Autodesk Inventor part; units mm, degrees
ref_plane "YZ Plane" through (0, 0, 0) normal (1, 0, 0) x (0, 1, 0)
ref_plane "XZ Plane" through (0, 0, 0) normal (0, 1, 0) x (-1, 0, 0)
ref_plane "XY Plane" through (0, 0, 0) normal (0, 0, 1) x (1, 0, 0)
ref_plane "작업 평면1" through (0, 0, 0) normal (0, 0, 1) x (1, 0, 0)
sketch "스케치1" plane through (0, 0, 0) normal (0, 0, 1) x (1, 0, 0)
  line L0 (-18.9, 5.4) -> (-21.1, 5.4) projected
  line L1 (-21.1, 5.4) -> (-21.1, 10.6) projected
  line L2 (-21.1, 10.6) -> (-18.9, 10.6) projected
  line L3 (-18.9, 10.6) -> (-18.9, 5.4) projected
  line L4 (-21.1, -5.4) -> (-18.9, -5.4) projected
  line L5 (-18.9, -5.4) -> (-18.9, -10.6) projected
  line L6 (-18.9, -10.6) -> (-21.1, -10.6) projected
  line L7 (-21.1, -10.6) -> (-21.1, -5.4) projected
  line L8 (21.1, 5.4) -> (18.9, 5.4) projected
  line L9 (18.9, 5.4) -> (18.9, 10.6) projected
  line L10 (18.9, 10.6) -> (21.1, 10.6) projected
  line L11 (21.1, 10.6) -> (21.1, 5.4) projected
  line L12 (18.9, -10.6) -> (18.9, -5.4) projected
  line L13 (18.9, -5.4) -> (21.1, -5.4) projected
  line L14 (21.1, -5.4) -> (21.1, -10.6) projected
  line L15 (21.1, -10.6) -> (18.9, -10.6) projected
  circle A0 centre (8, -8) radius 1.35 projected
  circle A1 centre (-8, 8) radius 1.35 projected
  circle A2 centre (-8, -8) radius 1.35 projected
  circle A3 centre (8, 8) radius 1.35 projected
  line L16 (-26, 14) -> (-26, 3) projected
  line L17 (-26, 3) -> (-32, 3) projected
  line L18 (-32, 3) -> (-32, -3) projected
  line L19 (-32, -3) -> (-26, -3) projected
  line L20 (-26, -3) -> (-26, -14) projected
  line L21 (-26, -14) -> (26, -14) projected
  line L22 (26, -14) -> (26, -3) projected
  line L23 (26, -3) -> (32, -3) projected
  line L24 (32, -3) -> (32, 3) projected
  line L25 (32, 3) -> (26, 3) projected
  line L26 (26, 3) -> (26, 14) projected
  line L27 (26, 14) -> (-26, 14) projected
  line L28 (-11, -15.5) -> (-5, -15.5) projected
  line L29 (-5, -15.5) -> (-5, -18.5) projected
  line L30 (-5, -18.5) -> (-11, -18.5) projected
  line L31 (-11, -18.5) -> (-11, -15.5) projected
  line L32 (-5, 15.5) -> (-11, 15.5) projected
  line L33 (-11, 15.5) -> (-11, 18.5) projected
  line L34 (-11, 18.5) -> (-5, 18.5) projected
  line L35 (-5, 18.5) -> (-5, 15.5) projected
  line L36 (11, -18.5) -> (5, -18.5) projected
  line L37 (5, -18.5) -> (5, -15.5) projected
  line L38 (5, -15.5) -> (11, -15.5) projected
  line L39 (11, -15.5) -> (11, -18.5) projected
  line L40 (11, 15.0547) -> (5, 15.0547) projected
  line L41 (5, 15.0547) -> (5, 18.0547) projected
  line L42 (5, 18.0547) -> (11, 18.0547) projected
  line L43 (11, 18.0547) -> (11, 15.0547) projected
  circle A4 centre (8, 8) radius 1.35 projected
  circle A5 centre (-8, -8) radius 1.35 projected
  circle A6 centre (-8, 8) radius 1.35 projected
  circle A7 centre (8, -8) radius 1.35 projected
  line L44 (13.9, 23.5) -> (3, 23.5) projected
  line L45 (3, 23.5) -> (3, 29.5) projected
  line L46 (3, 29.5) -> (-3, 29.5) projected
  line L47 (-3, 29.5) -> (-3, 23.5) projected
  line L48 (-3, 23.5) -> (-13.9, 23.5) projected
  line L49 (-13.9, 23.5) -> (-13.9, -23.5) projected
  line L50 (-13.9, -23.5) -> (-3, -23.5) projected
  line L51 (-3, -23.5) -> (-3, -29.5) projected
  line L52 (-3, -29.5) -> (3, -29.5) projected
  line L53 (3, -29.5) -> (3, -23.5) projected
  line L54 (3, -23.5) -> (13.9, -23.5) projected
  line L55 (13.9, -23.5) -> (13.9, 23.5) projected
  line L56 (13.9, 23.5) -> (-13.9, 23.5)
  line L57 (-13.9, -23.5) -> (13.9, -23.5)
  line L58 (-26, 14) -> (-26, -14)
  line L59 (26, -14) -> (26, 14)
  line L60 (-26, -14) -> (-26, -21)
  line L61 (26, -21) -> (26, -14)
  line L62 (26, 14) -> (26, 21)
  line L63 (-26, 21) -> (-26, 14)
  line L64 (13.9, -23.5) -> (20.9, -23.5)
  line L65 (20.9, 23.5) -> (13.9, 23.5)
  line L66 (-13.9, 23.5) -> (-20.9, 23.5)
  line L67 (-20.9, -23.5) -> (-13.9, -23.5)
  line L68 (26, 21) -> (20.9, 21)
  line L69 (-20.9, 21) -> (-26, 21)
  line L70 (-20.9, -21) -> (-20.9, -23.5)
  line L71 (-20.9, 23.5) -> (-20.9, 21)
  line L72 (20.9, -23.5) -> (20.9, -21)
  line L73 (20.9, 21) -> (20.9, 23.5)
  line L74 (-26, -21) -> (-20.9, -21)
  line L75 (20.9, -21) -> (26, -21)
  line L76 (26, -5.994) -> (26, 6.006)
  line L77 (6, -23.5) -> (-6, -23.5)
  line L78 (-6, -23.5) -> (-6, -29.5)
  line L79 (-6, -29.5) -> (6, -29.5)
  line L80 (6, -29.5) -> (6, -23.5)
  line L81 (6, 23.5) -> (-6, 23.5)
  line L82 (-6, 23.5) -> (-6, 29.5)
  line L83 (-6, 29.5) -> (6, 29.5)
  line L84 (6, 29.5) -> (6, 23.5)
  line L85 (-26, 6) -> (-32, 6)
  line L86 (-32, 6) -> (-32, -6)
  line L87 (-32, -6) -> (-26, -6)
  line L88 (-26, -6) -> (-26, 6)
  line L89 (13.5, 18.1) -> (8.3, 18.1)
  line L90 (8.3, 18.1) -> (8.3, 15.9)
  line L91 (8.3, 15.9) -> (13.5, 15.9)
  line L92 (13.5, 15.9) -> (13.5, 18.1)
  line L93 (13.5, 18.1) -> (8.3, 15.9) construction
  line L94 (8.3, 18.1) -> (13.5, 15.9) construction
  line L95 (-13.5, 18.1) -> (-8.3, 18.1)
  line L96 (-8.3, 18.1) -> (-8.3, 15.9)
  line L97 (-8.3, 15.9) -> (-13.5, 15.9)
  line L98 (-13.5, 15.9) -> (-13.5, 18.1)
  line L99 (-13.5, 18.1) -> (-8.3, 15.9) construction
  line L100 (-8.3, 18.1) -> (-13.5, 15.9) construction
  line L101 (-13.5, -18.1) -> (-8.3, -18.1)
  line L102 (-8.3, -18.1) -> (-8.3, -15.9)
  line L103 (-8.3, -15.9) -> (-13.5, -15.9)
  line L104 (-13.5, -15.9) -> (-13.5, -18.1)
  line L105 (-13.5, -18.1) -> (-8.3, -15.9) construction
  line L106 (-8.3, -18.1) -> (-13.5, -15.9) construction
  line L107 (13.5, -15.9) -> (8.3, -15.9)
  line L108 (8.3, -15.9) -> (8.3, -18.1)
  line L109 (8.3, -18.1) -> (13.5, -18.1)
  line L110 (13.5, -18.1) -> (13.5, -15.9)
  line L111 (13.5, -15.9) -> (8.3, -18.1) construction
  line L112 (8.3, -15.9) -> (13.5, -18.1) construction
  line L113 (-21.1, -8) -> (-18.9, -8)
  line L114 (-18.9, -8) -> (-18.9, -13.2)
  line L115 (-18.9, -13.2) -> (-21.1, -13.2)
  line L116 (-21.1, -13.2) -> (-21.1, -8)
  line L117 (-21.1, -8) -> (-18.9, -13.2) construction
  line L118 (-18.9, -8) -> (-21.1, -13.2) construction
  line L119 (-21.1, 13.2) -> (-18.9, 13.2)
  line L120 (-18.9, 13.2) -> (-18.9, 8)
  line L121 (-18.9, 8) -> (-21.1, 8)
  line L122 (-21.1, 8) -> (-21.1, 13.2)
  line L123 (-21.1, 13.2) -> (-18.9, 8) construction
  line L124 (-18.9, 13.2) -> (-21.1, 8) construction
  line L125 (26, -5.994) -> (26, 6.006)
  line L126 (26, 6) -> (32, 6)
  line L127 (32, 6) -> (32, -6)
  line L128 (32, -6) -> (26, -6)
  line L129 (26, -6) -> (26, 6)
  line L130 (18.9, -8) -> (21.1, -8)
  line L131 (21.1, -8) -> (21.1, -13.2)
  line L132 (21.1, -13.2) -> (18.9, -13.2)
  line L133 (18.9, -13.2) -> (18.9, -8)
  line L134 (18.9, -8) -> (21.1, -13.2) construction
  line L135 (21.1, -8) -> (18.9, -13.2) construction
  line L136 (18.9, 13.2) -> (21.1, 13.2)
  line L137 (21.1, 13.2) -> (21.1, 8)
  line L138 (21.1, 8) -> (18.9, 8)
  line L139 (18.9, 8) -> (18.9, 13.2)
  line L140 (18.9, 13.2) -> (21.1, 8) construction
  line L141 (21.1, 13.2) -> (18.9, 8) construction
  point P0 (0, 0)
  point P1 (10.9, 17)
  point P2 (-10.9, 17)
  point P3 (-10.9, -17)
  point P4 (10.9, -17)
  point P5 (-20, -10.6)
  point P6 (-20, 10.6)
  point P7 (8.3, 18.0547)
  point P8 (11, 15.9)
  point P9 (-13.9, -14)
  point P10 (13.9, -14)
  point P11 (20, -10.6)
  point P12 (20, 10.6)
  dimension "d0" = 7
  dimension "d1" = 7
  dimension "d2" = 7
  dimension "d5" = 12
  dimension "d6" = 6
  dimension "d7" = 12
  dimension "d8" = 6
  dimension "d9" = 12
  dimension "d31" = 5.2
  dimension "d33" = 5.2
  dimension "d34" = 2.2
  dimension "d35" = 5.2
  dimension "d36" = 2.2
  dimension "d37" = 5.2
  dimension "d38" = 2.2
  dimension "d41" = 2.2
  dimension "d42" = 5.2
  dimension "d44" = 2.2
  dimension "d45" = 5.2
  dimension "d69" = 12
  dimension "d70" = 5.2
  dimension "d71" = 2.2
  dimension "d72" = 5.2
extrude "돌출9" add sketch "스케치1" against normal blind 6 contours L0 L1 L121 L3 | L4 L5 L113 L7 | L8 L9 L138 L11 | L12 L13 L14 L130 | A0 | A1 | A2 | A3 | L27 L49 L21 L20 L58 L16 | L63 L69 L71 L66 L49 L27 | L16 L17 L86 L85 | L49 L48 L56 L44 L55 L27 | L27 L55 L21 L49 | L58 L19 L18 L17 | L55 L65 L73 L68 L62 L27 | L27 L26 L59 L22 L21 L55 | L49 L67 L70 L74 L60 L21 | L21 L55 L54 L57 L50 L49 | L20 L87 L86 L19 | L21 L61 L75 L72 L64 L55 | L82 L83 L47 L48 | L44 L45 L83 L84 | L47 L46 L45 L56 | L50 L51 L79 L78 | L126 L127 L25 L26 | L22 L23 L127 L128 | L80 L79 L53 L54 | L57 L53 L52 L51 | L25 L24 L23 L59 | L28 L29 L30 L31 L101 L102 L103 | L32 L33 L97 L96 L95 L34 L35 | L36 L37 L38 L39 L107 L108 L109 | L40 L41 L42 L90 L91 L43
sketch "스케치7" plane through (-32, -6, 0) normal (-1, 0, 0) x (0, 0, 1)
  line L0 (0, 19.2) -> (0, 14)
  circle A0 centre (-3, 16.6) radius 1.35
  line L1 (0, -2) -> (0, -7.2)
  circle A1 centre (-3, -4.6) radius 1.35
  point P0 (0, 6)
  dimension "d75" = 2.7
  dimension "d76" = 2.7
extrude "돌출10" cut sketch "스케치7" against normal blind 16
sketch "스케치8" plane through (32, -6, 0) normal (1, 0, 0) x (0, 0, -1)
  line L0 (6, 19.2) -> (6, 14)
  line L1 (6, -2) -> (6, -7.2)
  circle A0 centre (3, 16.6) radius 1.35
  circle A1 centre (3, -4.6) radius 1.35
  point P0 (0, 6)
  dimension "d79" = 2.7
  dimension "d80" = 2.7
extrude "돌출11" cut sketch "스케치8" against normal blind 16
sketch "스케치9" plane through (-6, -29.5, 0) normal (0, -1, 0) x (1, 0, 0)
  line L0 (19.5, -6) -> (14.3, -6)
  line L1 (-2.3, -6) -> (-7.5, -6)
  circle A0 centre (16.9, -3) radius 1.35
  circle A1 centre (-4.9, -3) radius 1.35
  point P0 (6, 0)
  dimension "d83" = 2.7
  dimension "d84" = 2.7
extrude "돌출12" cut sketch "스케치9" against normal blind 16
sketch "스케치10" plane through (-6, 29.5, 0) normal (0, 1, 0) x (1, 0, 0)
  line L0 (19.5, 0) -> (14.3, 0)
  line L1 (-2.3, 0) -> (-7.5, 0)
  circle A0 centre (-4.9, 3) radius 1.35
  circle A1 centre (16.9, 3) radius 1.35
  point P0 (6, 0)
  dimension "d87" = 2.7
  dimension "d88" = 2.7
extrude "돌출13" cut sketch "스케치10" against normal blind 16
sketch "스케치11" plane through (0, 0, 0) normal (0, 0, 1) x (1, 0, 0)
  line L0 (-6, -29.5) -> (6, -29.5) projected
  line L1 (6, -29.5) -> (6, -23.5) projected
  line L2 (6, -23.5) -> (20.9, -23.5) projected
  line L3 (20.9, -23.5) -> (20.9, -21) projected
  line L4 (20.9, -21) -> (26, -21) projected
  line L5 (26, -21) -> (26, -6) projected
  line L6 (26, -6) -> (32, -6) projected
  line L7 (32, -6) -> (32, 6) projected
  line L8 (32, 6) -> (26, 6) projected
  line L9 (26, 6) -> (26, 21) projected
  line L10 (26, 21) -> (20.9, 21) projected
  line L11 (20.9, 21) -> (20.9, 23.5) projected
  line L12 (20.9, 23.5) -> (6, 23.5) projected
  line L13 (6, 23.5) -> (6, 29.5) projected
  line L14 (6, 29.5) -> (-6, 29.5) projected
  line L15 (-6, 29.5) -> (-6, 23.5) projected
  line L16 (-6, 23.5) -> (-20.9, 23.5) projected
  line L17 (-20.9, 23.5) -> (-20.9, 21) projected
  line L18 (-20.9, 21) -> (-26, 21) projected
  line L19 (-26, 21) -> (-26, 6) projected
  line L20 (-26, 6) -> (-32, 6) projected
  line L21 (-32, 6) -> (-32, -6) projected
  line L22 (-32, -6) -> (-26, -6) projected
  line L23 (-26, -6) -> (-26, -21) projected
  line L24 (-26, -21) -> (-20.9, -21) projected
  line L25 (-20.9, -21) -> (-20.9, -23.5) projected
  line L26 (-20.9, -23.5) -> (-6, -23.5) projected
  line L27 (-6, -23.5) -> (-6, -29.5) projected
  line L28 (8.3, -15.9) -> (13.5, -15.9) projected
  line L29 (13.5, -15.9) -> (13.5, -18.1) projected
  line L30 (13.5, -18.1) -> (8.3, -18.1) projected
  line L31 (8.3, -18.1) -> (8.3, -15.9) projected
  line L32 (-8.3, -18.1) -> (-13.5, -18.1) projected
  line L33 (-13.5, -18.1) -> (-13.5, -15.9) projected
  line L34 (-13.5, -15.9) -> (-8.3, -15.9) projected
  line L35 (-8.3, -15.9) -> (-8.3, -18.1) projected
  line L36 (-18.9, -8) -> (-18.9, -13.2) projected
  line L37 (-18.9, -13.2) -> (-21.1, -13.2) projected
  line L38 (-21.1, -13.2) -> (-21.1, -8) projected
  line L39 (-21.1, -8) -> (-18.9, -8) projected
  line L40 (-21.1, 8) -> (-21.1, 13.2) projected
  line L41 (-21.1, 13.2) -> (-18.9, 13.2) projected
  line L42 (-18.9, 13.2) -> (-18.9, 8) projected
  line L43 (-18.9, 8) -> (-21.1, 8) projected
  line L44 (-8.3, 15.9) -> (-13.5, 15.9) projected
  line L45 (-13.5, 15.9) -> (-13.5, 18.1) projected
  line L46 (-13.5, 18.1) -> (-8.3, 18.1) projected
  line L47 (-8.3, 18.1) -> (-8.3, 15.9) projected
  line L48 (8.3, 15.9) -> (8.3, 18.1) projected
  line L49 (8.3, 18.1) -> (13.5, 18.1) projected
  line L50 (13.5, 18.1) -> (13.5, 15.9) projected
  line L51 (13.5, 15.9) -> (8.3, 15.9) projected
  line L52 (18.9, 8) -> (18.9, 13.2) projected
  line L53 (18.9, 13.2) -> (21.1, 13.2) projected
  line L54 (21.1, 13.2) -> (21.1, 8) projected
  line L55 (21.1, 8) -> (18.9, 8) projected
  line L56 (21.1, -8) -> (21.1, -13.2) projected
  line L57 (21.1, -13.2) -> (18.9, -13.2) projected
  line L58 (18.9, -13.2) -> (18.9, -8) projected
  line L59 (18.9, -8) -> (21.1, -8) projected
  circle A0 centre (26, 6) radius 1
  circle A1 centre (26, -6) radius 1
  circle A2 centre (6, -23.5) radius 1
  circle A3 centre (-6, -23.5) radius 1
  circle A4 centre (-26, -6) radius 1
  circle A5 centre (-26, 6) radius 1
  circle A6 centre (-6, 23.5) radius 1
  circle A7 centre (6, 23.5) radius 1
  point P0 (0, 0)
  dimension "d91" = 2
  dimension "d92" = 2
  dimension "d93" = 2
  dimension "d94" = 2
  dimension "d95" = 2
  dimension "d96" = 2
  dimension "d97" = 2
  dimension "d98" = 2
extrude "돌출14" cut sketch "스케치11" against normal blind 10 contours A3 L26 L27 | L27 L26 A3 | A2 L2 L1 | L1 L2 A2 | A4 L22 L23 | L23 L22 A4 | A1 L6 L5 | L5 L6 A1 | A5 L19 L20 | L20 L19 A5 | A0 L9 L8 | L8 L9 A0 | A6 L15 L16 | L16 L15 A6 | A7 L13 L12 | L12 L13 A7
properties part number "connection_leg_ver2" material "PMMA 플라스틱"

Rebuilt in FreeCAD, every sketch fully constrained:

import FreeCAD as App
import Part
import Sketcher
from FreeCAD import Vector
Q = App.Units.Quantity

doc = App.newDocument("Part")
params = doc.addObject("Spreadsheet::Sheet", "Params")
for row, (alias, value) in enumerate([
    ("sketch1_width", "12 mm"),
    ("sketch1_width2", "6 mm"),
    ("sketch1_width3", "2.2 mm"),
    ("sketch1_width4", "5.2 mm"),
    ("sketch1_height", "15 mm"),
    ("pad1_length", "6 mm"),
    ("sketch2_diameter", "2.7 mm"),
    ("pocket1_length", "16 mm"),
    ("sketch3_diameter", "2.7 mm"),
    ("pocket2_length", "16 mm"),
    ("sketch4_diameter", "2.7 mm"),
    ("pocket3_length", "16 mm"),
    ("sketch5_diameter", "2.7 mm"),
    ("pocket4_length", "16 mm"),
    ("sketch6_diameter", "2 mm"),
    ("pocket5_length", "10 mm"),
], start=1):
    params.set(f"A{row}", alias)
    params.set(f"B{row}", "=" + value)
    params.setAlias(f"B{row}", alias)

body = doc.addObject("PartDesign::Body", "Body")

# Sketch on XY plane
sketch1 = body.newObject("Sketcher::SketchObject", "Sketch")
sketch1.AttachmentSupport = (doc.getObject("XY_Plane"), [""])
sketch1.MapMode = "FlatFace"
sketch1.addGeometry(Part.LineSegment(Vector(-26, -6, 0), Vector(-26, -21, 0)), False)
sketch1.addGeometry(Part.LineSegment(Vector(-26, -21, 0), Vector(-20.9, -21, 0)), False)
sketch1.addGeometry(Part.LineSegment(Vector(-20.9, -21, 0), Vector(-20.9, -23.5, 0)), False)
sketch1.addGeometry(Part.LineSegment(Vector(-20.9, -23.5, 0), Vector(-6, -23.5, 0)), False)
sketch1.addGeometry(Part.LineSegment(Vector(-6, -23.5, 0), Vector(-6, -29.5, 0)), False)
sketch1.addGeometry(Part.LineSegment(Vector(-6, -29.5, 0), Vector(6, -29.5, 0)), False)
sketch1.addGeometry(Part.LineSegment(Vector(6, -29.5, 0), Vector(6, -23.5, 0)), False)
sketch1.addGeometry(Part.LineSegment(Vector(6, -23.5, 0), Vector(20.9, -23.5, 0)), False)
sketch1.addGeometry(Part.LineSegment(Vector(20.9, -23.5, 0), Vector(20.9, -21, 0)), False)
sketch1.addGeometry(Part.LineSegment(Vector(20.9, -21, 0), Vector(26, -21, 0)), False)
sketch1.addGeometry(Part.LineSegment(Vector(26, -21, 0), Vector(26, -6, 0)), False)
sketch1.addGeometry(Part.LineSegment(Vector(26, -6, 0), Vector(32, -6, 0)), False)
sketch1.addGeometry(Part.LineSegment(Vector(32, -6, 0), Vector(32, 6, 0)), False)
sketch1.addGeometry(Part.LineSegment(Vector(32, 6, 0), Vector(26, 6, 0)), False)
sketch1.addGeometry(Part.LineSegment(Vector(26, 6, 0), Vector(26, 21, 0)), False)
sketch1.addGeometry(Part.LineSegment(Vector(26, 21, 0), Vector(20.9, 21, 0)), False)
sketch1.addGeometry(Part.LineSegment(Vector(20.9, 21, 0), Vector(20.9, 23.5, 0)), False)
sketch1.addGeometry(Part.LineSegment(Vector(20.9, 23.5, 0), Vector(6, 23.5, 0)), False)
sketch1.addGeometry(Part.LineSegment(Vector(6, 23.5, 0), Vector(6, 29.5, 0)), False)
sketch1.addGeometry(Part.LineSegment(Vector(6, 29.5, 0), Vector(-6, 29.5, 0)), False)
sketch1.addGeometry(Part.LineSegment(Vector(-6, 29.5, 0), Vector(-6, 23.5, 0)), False)
sketch1.addGeometry(Part.LineSegment(Vector(-6, 23.5, 0), Vector(-20.9, 23.5, 0)), False)
sketch1.addGeometry(Part.LineSegment(Vector(-20.9, 23.5, 0), Vector(-20.9, 21, 0)), False)
sketch1.addGeometry(Part.LineSegment(Vector(-20.9, 21, 0), Vector(-26, 21, 0)), False)
sketch1.addGeometry(Part.LineSegment(Vector(-26, 21, 0), Vector(-26, 6, 0)), False)
sketch1.addGeometry(Part.LineSegment(Vector(-26, 6, 0), Vector(-32, 6, 0)), False)
sketch1.addGeometry(Part.LineSegment(Vector(-32, 6, 0), Vector(-32, -6, 0)), False)
sketch1.addGeometry(Part.LineSegment(Vector(-32, -6, 0), Vector(-26, -6, 0)), False)
sketch1.addGeometry(Part.LineSegment(Vector(-18.9, 8, 0), Vector(-21.1, 8, 0)), False)
sketch1.addGeometry(Part.LineSegment(Vector(-21.1, 8, 0), Vector(-21.1, 13.2, 0)), False)
sketch1.addGeometry(Part.LineSegment(Vector(-21.1, 13.2, 0), Vector(-18.9, 13.2, 0)), False)
sketch1.addGeometry(Part.LineSegment(Vector(-18.9, 13.2, 0), Vector(-18.9, 8, 0)), False)
sketch1.addGeometry(Part.LineSegment(Vector(-21.1, -8, 0), Vector(-18.9, -8, 0)), False)
sketch1.addGeometry(Part.LineSegment(Vector(-18.9, -8, 0), Vector(-18.9, -13.2, 0)), False)
sketch1.addGeometry(Part.LineSegment(Vector(-18.9, -13.2, 0), Vector(-21.1, -13.2, 0)), False)
sketch1.addGeometry(Part.LineSegment(Vector(-21.1, -13.2, 0), Vector(-21.1, -8, 0)), False)
sketch1.addGeometry(Part.LineSegment(Vector(-13.5, 18.1, 0), Vector(-8.3, 18.1, 0)), False)
sketch1.addGeometry(Part.LineSegment(Vector(-8.3, 18.1, 0), Vector(-8.3, 15.9, 0)), False)
sketch1.addGeometry(Part.LineSegment(Vector(-8.3, 15.9, 0), Vector(-13.5, 15.9, 0)), False)
sketch1.addGeometry(Part.LineSegment(Vector(-13.5, 15.9, 0), Vector(-13.5, 18.1, 0)), False)
sketch1.addGeometry(Part.LineSegment(Vector(13.5, 15.9, 0), Vector(8.3, 15.9, 0)), False)
sketch1.addGeometry(Part.LineSegment(Vector(8.3, 15.9, 0), Vector(8.3, 18.1, 0)), False)
sketch1.addGeometry(Part.LineSegment(Vector(8.3, 18.1, 0), Vector(13.5, 18.1, 0)), False)
sketch1.addGeometry(Part.LineSegment(Vector(13.5, 18.1, 0), Vector(13.5, 15.9, 0)), False)
sketch1.addGeometry(Part.LineSegment(Vector(18.9, -13.2, 0), Vector(18.9, -8, 0)), False)
sketch1.addGeometry(Part.LineSegment(Vector(18.9, -8, 0), Vector(21.1, -8, 0)), False)
sketch1.addGeometry(Part.LineSegment(Vector(21.1, -8, 0), Vector(21.1, -13.2, 0)), False)
sketch1.addGeometry(Part.LineSegment(Vector(21.1, -13.2, 0), Vector(18.9, -13.2, 0)), False)
sketch1.addGeometry(Part.LineSegment(Vector(21.1, 8, 0), Vector(18.9, 8, 0)), False)
sketch1.addGeometry(Part.LineSegment(Vector(18.9, 8, 0), Vector(18.9, 13.2, 0)), False)
sketch1.addGeometry(Part.LineSegment(Vector(18.9, 13.2, 0), Vector(21.1, 13.2, 0)), False)
sketch1.addGeometry(Part.LineSegment(Vector(21.1, 13.2, 0), Vector(21.1, 8, 0)), False)
sketch1.addGeometry(Part.LineSegment(Vector(-13.5, -15.9, 0), Vector(-8.3, -15.9, 0)), False)
sketch1.addGeometry(Part.LineSegment(Vector(-8.3, -15.9, 0), Vector(-8.3, -18.1, 0)), False)
sketch1.addGeometry(Part.LineSegment(Vector(-8.3, -18.1, 0), Vector(-13.5, -18.1, 0)), False)
sketch1.addGeometry(Part.LineSegment(Vector(-13.5, -18.1, 0), Vector(-13.5, -15.9, 0)), False)
sketch1.addGeometry(Part.LineSegment(Vector(13.5, -18.1, 0), Vector(8.3, -18.1, 0)), False)
sketch1.addGeometry(Part.LineSegment(Vector(8.3, -18.1, 0), Vector(8.3, -15.9, 0)), False)
sketch1.addGeometry(Part.LineSegment(Vector(8.3, -15.9, 0), Vector(13.5, -15.9, 0)), False)
sketch1.addGeometry(Part.LineSegment(Vector(13.5, -15.9, 0), Vector(13.5, -18.1, 0)), False)
sketch1.addConstraint(Sketcher.Constraint("Coincident", 0, 2, 1, 1))
sketch1.addConstraint(Sketcher.Constraint("Coincident", 1, 2, 2, 1))
sketch1.addConstraint(Sketcher.Constraint("Coincident", 2, 2, 3, 1))
sketch1.addConstraint(Sketcher.Constraint("Coincident", 3, 2, 4, 1))
sketch1.addConstraint(Sketcher.Constraint("Coincident", 4, 2, 5, 1))
sketch1.addConstraint(Sketcher.Constraint("Coincident", 5, 2, 6, 1))
sketch1.addConstraint(Sketcher.Constraint("Coincident", 6, 2, 7, 1))
sketch1.addConstraint(Sketcher.Constraint("Coincident", 7, 2, 8, 1))
sketch1.addConstraint(Sketcher.Constraint("Coincident", 8, 2, 9, 1))
sketch1.addConstraint(Sketcher.Constraint("Coincident", 9, 2, 10, 1))
sketch1.addConstraint(Sketcher.Constraint("Coincident", 10, 2, 11, 1))
sketch1.addConstraint(Sketcher.Constraint("Coincident", 11, 2, 12, 1))
sketch1.addConstraint(Sketcher.Constraint("Coincident", 12, 2, 13, 1))
sketch1.addConstraint(Sketcher.Constraint("Coincident", 13, 2, 14, 1))
sketch1.addConstraint(Sketcher.Constraint("Coincident", 14, 2, 15, 1))
sketch1.addConstraint(Sketcher.Constraint("Coincident", 15, 2, 16, 1))
sketch1.addConstraint(Sketcher.Constraint("Coincident", 16, 2, 17, 1))
sketch1.addConstraint(Sketcher.Constraint("Coincident", 17, 2, 18, 1))
sketch1.addConstraint(Sketcher.Constraint("Coincident", 18, 2, 19, 1))
sketch1.addConstraint(Sketcher.Constraint("Coincident", 19, 2, 20, 1))
sketch1.addConstraint(Sketcher.Constraint("Coincident", 20, 2, 21, 1))
sketch1.addConstraint(Sketcher.Constraint("Coincident", 21, 2, 22, 1))
sketch1.addConstraint(Sketcher.Constraint("Coincident", 22, 2, 23, 1))
sketch1.addConstraint(Sketcher.Constraint("Coincident", 23, 2, 24, 1))
sketch1.addConstraint(Sketcher.Constraint("Coincident", 24, 2, 25, 1))
sketch1.addConstraint(Sketcher.Constraint("Coincident", 25, 2, 26, 1))
sketch1.addConstraint(Sketcher.Constraint("Coincident", 26, 2, 27, 1))
sketch1.addConstraint(Sketcher.Constraint("Coincident", 27, 2, 0, 1))
sketch1.addConstraint(Sketcher.Constraint("Coincident", 28, 2, 29, 1))
sketch1.addConstraint(Sketcher.Constraint("Coincident", 29, 2, 30, 1))
sketch1.addConstraint(Sketcher.Constraint("Coincident", 30, 2, 31, 1))
sketch1.addConstraint(Sketcher.Constraint("Coincident", 31, 2, 28, 1))
sketch1.addConstraint(Sketcher.Constraint("Coincident", 32, 2, 33, 1))
sketch1.addConstraint(Sketcher.Constraint("Coincident", 33, 2, 34, 1))
sketch1.addConstraint(Sketcher.Constraint("Coincident", 34, 2, 35, 1))
sketch1.addConstraint(Sketcher.Constraint("Coincident", 35, 2, 32, 1))
sketch1.addConstraint(Sketcher.Constraint("Coincident", 36, 2, 37, 1))
sketch1.addConstraint(Sketcher.Constraint("Coincident", 37, 2, 38, 1))
sketch1.addConstraint(Sketcher.Constraint("Coincident", 38, 2, 39, 1))
sketch1.addConstraint(Sketcher.Constraint("Coincident", 39, 2, 36, 1))
sketch1.addConstraint(Sketcher.Constraint("Coincident", 40, 2, 41, 1))
sketch1.addConstraint(Sketcher.Constraint("Coincident", 41, 2, 42, 1))
sketch1.addConstraint(Sketcher.Constraint("Coincident", 42, 2, 43, 1))
sketch1.addConstraint(Sketcher.Constraint("Coincident", 43, 2, 40, 1))
sketch1.addConstraint(Sketcher.Constraint("Coincident", 44, 2, 45, 1))
sketch1.addConstraint(Sketcher.Constraint("Coincident", 45, 2, 46, 1))
sketch1.addConstraint(Sketcher.Constraint("Coincident", 46, 2, 47, 1))
sketch1.addConstraint(Sketcher.Constraint("Coincident", 47, 2, 44, 1))
sketch1.addConstraint(Sketcher.Constraint("Coincident", 48, 2, 49, 1))
sketch1.addConstraint(Sketcher.Constraint("Coincident", 49, 2, 50, 1))
sketch1.addConstraint(Sketcher.Constraint("Coincident", 50, 2, 51, 1))
sketch1.addConstraint(Sketcher.Constraint("Coincident", 51, 2, 48, 1))
sketch1.addConstraint(Sketcher.Constraint("Coincident", 52, 2, 53, 1))
sketch1.addConstraint(Sketcher.Constraint("Coincident", 53, 2, 54, 1))
sketch1.addConstraint(Sketcher.Constraint("Coincident", 54, 2, 55, 1))
sketch1.addConstraint(Sketcher.Constraint("Coincident", 55, 2, 52, 1))
sketch1.addConstraint(Sketcher.Constraint("Coincident", 56, 2, 57, 1))
sketch1.addConstraint(Sketcher.Constraint("Coincident", 57, 2, 58, 1))
sketch1.addConstraint(Sketcher.Constraint("Coincident", 58, 2, 59, 1))
sketch1.addConstraint(Sketcher.Constraint("Coincident", 59, 2, 56, 1))
sketch1.addConstraint(Sketcher.Constraint("Vertical", 0))
sketch1.addConstraint(Sketcher.Constraint("Horizontal", 1))
sketch1.addConstraint(Sketcher.Constraint("Vertical", 2))
sketch1.addConstraint(Sketcher.Constraint("Horizontal", 3))
sketch1.addConstraint(Sketcher.Constraint("Vertical", 4))
sketch1.addConstraint(Sketcher.Constraint("Horizontal", 5))
sketch1.addConstraint(Sketcher.Constraint("Vertical", 6))
sketch1.addConstraint(Sketcher.Constraint("Horizontal", 7))
sketch1.addConstraint(Sketcher.Constraint("Vertical", 8))
sketch1.addConstraint(Sketcher.Constraint("Horizontal", 9))
sketch1.addConstraint(Sketcher.Constraint("Vertical", 10))
sketch1.addConstraint(Sketcher.Constraint("Horizontal", 11))
sketch1.addConstraint(Sketcher.Constraint("Vertical", 12))
sketch1.addConstraint(Sketcher.Constraint("Horizontal", 13))
sketch1.addConstraint(Sketcher.Constraint("Vertical", 14))
sketch1.addConstraint(Sketcher.Constraint("Horizontal", 15))
sketch1.addConstraint(Sketcher.Constraint("Vertical", 16))
sketch1.addConstraint(Sketcher.Constraint("Horizontal", 17))
sketch1.addConstraint(Sketcher.Constraint("Vertical", 18))
sketch1.addConstraint(Sketcher.Constraint("Horizontal", 19))
sketch1.addConstraint(Sketcher.Constraint("Vertical", 20))
sketch1.addConstraint(Sketcher.Constraint("Horizontal", 21))
sketch1.addConstraint(Sketcher.Constraint("Vertical", 22))
sketch1.addConstraint(Sketcher.Constraint("Horizontal", 23))
sketch1.addConstraint(Sketcher.Constraint("Vertical", 24))
sketch1.addConstraint(Sketcher.Constraint("Horizontal", 25))
sketch1.addConstraint(Sketcher.Constraint("Vertical", 26))
sketch1.addConstraint(Sketcher.Constraint("Horizontal", 27))
sketch1.addConstraint(Sketcher.Constraint("Horizontal", 28))
sketch1.addConstraint(Sketcher.Constraint("Vertical", 29))
sketch1.addConstraint(Sketcher.Constraint("Horizontal", 30))
sketch1.addConstraint(Sketcher.Constraint("Vertical", 31))
sketch1.addConstraint(Sketcher.Constraint("Horizontal", 32))
sketch1.addConstraint(Sketcher.Constraint("Vertical", 33))
sketch1.addConstraint(Sketcher.Constraint("Horizontal", 34))
sketch1.addConstraint(Sketcher.Constraint("Vertical", 35))
sketch1.addConstraint(Sketcher.Constraint("Horizontal", 36))
sketch1.addConstraint(Sketcher.Constraint("Vertical", 37))
sketch1.addConstraint(Sketcher.Constraint("Horizontal", 38))
sketch1.addConstraint(Sketcher.Constraint("Vertical", 39))
sketch1.addConstraint(Sketcher.Constraint("Horizontal", 40))
sketch1.addConstraint(Sketcher.Constraint("Vertical", 41))
sketch1.addConstraint(Sketcher.Constraint("Horizontal", 42))
sketch1.addConstraint(Sketcher.Constraint("Vertical", 43))
sketch1.addConstraint(Sketcher.Constraint("Vertical", 44))
sketch1.addConstraint(Sketcher.Constraint("Horizontal", 45))
sketch1.addConstraint(Sketcher.Constraint("Vertical", 46))
sketch1.addConstraint(Sketcher.Constraint("Horizontal", 47))
sketch1.addConstraint(Sketcher.Constraint("Horizontal", 48))
sketch1.addConstraint(Sketcher.Constraint("Vertical", 49))
sketch1.addConstraint(Sketcher.Constraint("Horizontal", 50))
sketch1.addConstraint(Sketcher.Constraint("Vertical", 51))
sketch1.addConstraint(Sketcher.Constraint("Horizontal", 52))
sketch1.addConstraint(Sketcher.Constraint("Vertical", 53))
sketch1.addConstraint(Sketcher.Constraint("Horizontal", 54))
sketch1.addConstraint(Sketcher.Constraint("Vertical", 55))
sketch1.addConstraint(Sketcher.Constraint("Horizontal", 56))
sketch1.addConstraint(Sketcher.Constraint("Vertical", 57))
sketch1.addConstraint(Sketcher.Constraint("Horizontal", 58))
sketch1.addConstraint(Sketcher.Constraint("Vertical", 59))
sketch1.addConstraint(Sketcher.Constraint("Symmetric", 0, 2, 14, 2, -1, 1))
sketch1.addConstraint(Sketcher.Constraint("Symmetric", 2, 2, 16, 2, -1, 1))
sketch1.addConstraint(Sketcher.Constraint("Symmetric", 4, 2, 18, 2, -1, 1))
sketch1.addConstraint(Sketcher.Constraint("Symmetric", 6, 2, 20, 2, -1, 1))
sketch1.addConstraint(Sketcher.Constraint("Symmetric", 8, 2, 22, 2, -1, 1))
sketch1.addConstraint(Sketcher.Constraint("Symmetric", 10, 2, 24, 2, -1, 1))
sketch1.addConstraint(Sketcher.Constraint("Symmetric", 12, 2, 26, 2, -1, 1))
sketch1.addConstraint(Sketcher.Constraint("Symmetric", 31, 2, 44, 2, -1, 1))
sketch1.addConstraint(Sketcher.Constraint("Symmetric", 29, 2, 46, 2, -1, 1))
sketch1.addConstraint(Sketcher.Constraint("Symmetric", 32, 2, 48, 2, -1, 1))
sketch1.addConstraint(Sketcher.Constraint("Symmetric", 34, 2, 50, 2, -1, 1))
sketch1.addConstraint(Sketcher.Constraint("Symmetric", 40, 2, 52, 2, -1, 1))
sketch1.addConstraint(Sketcher.Constraint("Symmetric", 42, 2, 54, 2, -1, 1))
sketch1.addConstraint(Sketcher.Constraint("Symmetric", 36, 2, 56, 2, -1, 1))
sketch1.addConstraint(Sketcher.Constraint("Symmetric", 38, 2, 58, 2, -1, 1))
sketch1.addConstraint(Sketcher.Constraint("Symmetric", 3, 2, 6, 2, -2))
sketch1.addConstraint(Sketcher.Constraint("Symmetric", 1, 2, 8, 2, -2))
sketch1.addConstraint(Sketcher.Constraint("Symmetric", 13, 2, 24, 2, -2))
sketch1.addConstraint(Sketcher.Constraint("Symmetric", 37, 2, 40, 2, -2))
sketch1.addConstraint(Sketcher.Constraint("Symmetric", 39, 2, 42, 2, -2))
sketch1.addConstraint(Sketcher.Constraint("Symmetric", 32, 2, 44, 2, -2))
sketch1.addConstraint(Sketcher.Constraint("Symmetric", 34, 2, 46, 2, -2))
sketch1.addConstraint(Sketcher.Constraint("Equal", 27, 4))
sketch1.addConstraint(Sketcher.Constraint("Equal", 19, 12))
sketch1.addConstraint(Sketcher.Constraint("Equal", 58, 29))
sketch1.addConstraint(Sketcher.Constraint("Equal", 50, 37))
sketch1.addConstraint(Sketcher.Constraint("DistanceX", 5, 1, 5, 2, Q("12 mm")))
sketch1.addConstraint(Sketcher.Constraint("DistanceX", 11, 1, 11, 2, Q("6 mm")))
sketch1.addConstraint(Sketcher.Constraint("DistanceX", 28, 2, 28, 1, Q("2.2 mm")))
sketch1.addConstraint(Sketcher.Constraint("DistanceX", 36, 1, 36, 2, Q("5.2 mm")))
sketch1.addConstraint(Sketcher.Constraint("DistanceY", 0, 2, 0, 1, Q("15 mm")))
sketch1.addConstraint(Sketcher.Constraint("DistanceX", 1, 1, 1, 2, Q("5.1 mm")))
sketch1.addConstraint(Sketcher.Constraint("DistanceX", 3, 1, 3, 2, Q("14.9 mm")))
sketch1.addConstraint(Sketcher.Constraint("DistanceY", 2, 2, 2, 1, Q("2.5 mm")))
sketch1.addConstraint(Sketcher.Constraint("DistanceY", -1, 1, 28, 2, Q("8 mm")))
sketch1.addConstraint(Sketcher.Constraint("DistanceX", 22, 2, 30, 2, Q("2 mm")))
sketch1.addConstraint(Sketcher.Constraint("DistanceX", 36, 2, -1, 1, Q("8.3 mm")))
sketch1.addConstraint(Sketcher.Constraint("DistanceY", -1, 1, 36, 2, Q("18.1 mm")))
sketch1.setExpression("Constraints[146]", "Params.sketch1_width")
sketch1.setExpression("Constraints[147]", "Params.sketch1_width2")
sketch1.setExpression("Constraints[148]", "Params.sketch1_width3")
sketch1.setExpression("Constraints[149]", "Params.sketch1_width4")
sketch1.setExpression("Constraints[150]", "Params.sketch1_height")
pad1 = body.newObject("PartDesign::Pad", "Pad")
pad1.Profile = sketch1
pad1.setExpression("Length", "Params.pad1_length")
pad1.Reversed = True

# Sketch on YZ plane
sketch2 = body.newObject("Sketcher::SketchObject", "Sketch001")
sketch2.AttachmentSupport = (doc.getObject("YZ_Plane"), [""])
sketch2.MapMode = "FlatFace"
sketch2.AttachmentOffset = App.Placement(Vector(0, 0, -32), App.Rotation())
sketch2.addGeometry(Part.Circle(Vector(10.6, -3, 0), Vector(0, 0, 1), 1.35), False)
sketch2.addGeometry(Part.Circle(Vector(-10.6, -3, 0), Vector(0, 0, 1), 1.35), False)
sketch2.addConstraint(Sketcher.Constraint("Equal", 0, 1))
sketch2.addConstraint(Sketcher.Constraint("Symmetric", 0, 3, 1, 3, -2))
sketch2.addConstraint(Sketcher.Constraint("Diameter", 0, Q("2.7 mm")))
sketch2.addConstraint(Sketcher.Constraint("DistanceY", 0, 3, -1, 1, Q("3 mm")))
sketch2.addConstraint(Sketcher.Constraint("DistanceX", -1, 1, 0, 3, Q("10.6 mm")))
sketch2.setExpression("Constraints[2]", "Params.sketch2_diameter")
pocket1 = body.newObject("PartDesign::Pocket", "Pocket")
pocket1.Profile = sketch2
pocket1.setExpression("Length", "Params.pocket1_length")
pocket1.Reversed = True

# Sketch on YZ plane
sketch3 = body.newObject("Sketcher::SketchObject", "Sketch002")
sketch3.AttachmentSupport = (doc.getObject("YZ_Plane"), [""])
sketch3.MapMode = "FlatFace"
sketch3.AttachmentOffset = App.Placement(Vector(0, 0, 32), App.Rotation())
sketch3.addGeometry(Part.Circle(Vector(10.6, -3, 0), Vector(0, 0, 1), 1.35), False)
sketch3.addGeometry(Part.Circle(Vector(-10.6, -3, 0), Vector(0, 0, 1), 1.35), False)
sketch3.addConstraint(Sketcher.Constraint("Equal", 0, 1))
sketch3.addConstraint(Sketcher.Constraint("Symmetric", 0, 3, 1, 3, -2))
sketch3.addConstraint(Sketcher.Constraint("Diameter", 0, Q("2.7 mm")))
sketch3.addConstraint(Sketcher.Constraint("DistanceY", 0, 3, -1, 1, Q("3 mm")))
sketch3.addConstraint(Sketcher.Constraint("DistanceX", -1, 1, 0, 3, Q("10.6 mm")))
sketch3.setExpression("Constraints[2]", "Params.sketch3_diameter")
pocket2 = body.newObject("PartDesign::Pocket", "Pocket001")
pocket2.Profile = sketch3
pocket2.setExpression("Length", "Params.pocket2_length")

# Sketch on XZ plane
sketch4 = body.newObject("Sketcher::SketchObject", "Sketch003")
sketch4.AttachmentSupport = (doc.getObject("XZ_Plane"), [""])
sketch4.MapMode = "FlatFace"
sketch4.AttachmentOffset = App.Placement(Vector(0, 0, 29.5), App.Rotation())
sketch4.addGeometry(Part.Circle(Vector(10.9, -3, 0), Vector(0, 0, 1), 1.35), False)
sketch4.addGeometry(Part.Circle(Vector(-10.9, -3, 0), Vector(0, 0, 1), 1.35), False)
sketch4.addConstraint(Sketcher.Constraint("Equal", 0, 1))
sketch4.addConstraint(Sketcher.Constraint("Symmetric", 0, 3, 1, 3, -2))
sketch4.addConstraint(Sketcher.Constraint("Diameter", 0, Q("2.7 mm")))
sketch4.addConstraint(Sketcher.Constraint("DistanceY", 0, 3, -1, 1, Q("3 mm")))
sketch4.addConstraint(Sketcher.Constraint("DistanceX", -1, 1, 0, 3, Q("10.9 mm")))
sketch4.setExpression("Constraints[2]", "Params.sketch4_diameter")
pocket3 = body.newObject("PartDesign::Pocket", "Pocket002")
pocket3.Profile = sketch4
pocket3.setExpression("Length", "Params.pocket3_length")

# Sketch on XZ plane
sketch5 = body.newObject("Sketcher::SketchObject", "Sketch004")
sketch5.AttachmentSupport = (doc.getObject("XZ_Plane"), [""])
sketch5.MapMode = "FlatFace"
sketch5.AttachmentOffset = App.Placement(Vector(0, 0, -29.5), App.Rotation())
sketch5.addGeometry(Part.Circle(Vector(-10.9, -3, 0), Vector(0, 0, 1), 1.35), False)
sketch5.addGeometry(Part.Circle(Vector(10.9, -3, 0), Vector(0, 0, 1), 1.35), False)
sketch5.addConstraint(Sketcher.Constraint("Equal", 0, 1))
sketch5.addConstraint(Sketcher.Constraint("Symmetric", 0, 3, 1, 3, -2))
sketch5.addConstraint(Sketcher.Constraint("Diameter", 0, Q("2.7 mm")))
sketch5.addConstraint(Sketcher.Constraint("DistanceY", 0, 3, -1, 1, Q("3 mm")))
sketch5.addConstraint(Sketcher.Constraint("DistanceX", 0, 3, -1, 1, Q("10.9 mm")))
sketch5.setExpression("Constraints[2]", "Params.sketch5_diameter")
pocket4 = body.newObject("PartDesign::Pocket", "Pocket003")
pocket4.Profile = sketch5
pocket4.setExpression("Length", "Params.pocket4_length")
pocket4.Reversed = True

# Sketch on XY plane
sketch6 = body.newObject("Sketcher::SketchObject", "Sketch005")
sketch6.AttachmentSupport = (doc.getObject("XY_Plane"), [""])
sketch6.MapMode = "FlatFace"
sketch6.addGeometry(Part.Circle(Vector(-6, -23.5, 0), Vector(0, 0, 1), 1), False)
sketch6.addGeometry(Part.Circle(Vector(6, -23.5, 0), Vector(0, 0, 1), 1), False)
sketch6.addGeometry(Part.Circle(Vector(-26, -6, 0), Vector(0, 0, 1), 1), False)
sketch6.addGeometry(Part.Circle(Vector(26, -6, 0), Vector(0, 0, 1), 1), False)
sketch6.addGeometry(Part.Circle(Vector(-26, 6, 0), Vector(0, 0, 1), 1), False)
sketch6.addGeometry(Part.Circle(Vector(26, 6, 0), Vector(0, 0, 1), 1), False)
sketch6.addGeometry(Part.Circle(Vector(-6, 23.5, 0), Vector(0, 0, 1), 1), False)
sketch6.addGeometry(Part.Circle(Vector(6, 23.5, 0), Vector(0, 0, 1), 1), False)
sketch6.addConstraint(Sketcher.Constraint("Equal", 0, 1))
sketch6.addConstraint(Sketcher.Constraint("Equal", 1, 2))
sketch6.addConstraint(Sketcher.Constraint("Equal", 2, 3))
sketch6.addConstraint(Sketcher.Constraint("Equal", 3, 4))
sketch6.addConstraint(Sketcher.Constraint("Equal", 4, 5))
sketch6.addConstraint(Sketcher.Constraint("Equal", 5, 6))
sketch6.addConstraint(Sketcher.Constraint("Equal", 6, 7))
sketch6.addConstraint(Sketcher.Constraint("Symmetric", 3, 3, 4, 3, -1, 1))
sketch6.addConstraint(Sketcher.Constraint("Symmetric", 2, 3, 5, 3, -1, 1))
sketch6.addConstraint(Sketcher.Constraint("Symmetric", 1, 3, 6, 3, -1, 1))
sketch6.addConstraint(Sketcher.Constraint("Symmetric", 0, 3, 7, 3, -1, 1))
sketch6.addConstraint(Sketcher.Constraint("Symmetric", 0, 3, 1, 3, -2))
sketch6.addConstraint(Sketcher.Constraint("Symmetric", 2, 3, 3, 3, -2))
sketch6.addConstraint(Sketcher.Constraint("Diameter", 0, Q("2 mm")))
sketch6.addConstraint(Sketcher.Constraint("DistanceX", 0, 3, -1, 1, Q("6 mm")))
sketch6.addConstraint(Sketcher.Constraint("DistanceX", 2, 3, -1, 1, Q("26 mm")))
sketch6.addConstraint(Sketcher.Constraint("DistanceY", 2, 3, -1, 1, Q("6 mm")))
sketch6.addConstraint(Sketcher.Constraint("DistanceY", 0, 3, 6, 3, Q("47 mm")))
sketch6.setExpression("Constraints[13]", "Params.sketch6_diameter")
pocket5 = body.newObject("PartDesign::Pocket", "Pocket004")
pocket5.Profile = sketch6
pocket5.setExpression("Length", "Params.pocket5_length")

doc.recompute()
